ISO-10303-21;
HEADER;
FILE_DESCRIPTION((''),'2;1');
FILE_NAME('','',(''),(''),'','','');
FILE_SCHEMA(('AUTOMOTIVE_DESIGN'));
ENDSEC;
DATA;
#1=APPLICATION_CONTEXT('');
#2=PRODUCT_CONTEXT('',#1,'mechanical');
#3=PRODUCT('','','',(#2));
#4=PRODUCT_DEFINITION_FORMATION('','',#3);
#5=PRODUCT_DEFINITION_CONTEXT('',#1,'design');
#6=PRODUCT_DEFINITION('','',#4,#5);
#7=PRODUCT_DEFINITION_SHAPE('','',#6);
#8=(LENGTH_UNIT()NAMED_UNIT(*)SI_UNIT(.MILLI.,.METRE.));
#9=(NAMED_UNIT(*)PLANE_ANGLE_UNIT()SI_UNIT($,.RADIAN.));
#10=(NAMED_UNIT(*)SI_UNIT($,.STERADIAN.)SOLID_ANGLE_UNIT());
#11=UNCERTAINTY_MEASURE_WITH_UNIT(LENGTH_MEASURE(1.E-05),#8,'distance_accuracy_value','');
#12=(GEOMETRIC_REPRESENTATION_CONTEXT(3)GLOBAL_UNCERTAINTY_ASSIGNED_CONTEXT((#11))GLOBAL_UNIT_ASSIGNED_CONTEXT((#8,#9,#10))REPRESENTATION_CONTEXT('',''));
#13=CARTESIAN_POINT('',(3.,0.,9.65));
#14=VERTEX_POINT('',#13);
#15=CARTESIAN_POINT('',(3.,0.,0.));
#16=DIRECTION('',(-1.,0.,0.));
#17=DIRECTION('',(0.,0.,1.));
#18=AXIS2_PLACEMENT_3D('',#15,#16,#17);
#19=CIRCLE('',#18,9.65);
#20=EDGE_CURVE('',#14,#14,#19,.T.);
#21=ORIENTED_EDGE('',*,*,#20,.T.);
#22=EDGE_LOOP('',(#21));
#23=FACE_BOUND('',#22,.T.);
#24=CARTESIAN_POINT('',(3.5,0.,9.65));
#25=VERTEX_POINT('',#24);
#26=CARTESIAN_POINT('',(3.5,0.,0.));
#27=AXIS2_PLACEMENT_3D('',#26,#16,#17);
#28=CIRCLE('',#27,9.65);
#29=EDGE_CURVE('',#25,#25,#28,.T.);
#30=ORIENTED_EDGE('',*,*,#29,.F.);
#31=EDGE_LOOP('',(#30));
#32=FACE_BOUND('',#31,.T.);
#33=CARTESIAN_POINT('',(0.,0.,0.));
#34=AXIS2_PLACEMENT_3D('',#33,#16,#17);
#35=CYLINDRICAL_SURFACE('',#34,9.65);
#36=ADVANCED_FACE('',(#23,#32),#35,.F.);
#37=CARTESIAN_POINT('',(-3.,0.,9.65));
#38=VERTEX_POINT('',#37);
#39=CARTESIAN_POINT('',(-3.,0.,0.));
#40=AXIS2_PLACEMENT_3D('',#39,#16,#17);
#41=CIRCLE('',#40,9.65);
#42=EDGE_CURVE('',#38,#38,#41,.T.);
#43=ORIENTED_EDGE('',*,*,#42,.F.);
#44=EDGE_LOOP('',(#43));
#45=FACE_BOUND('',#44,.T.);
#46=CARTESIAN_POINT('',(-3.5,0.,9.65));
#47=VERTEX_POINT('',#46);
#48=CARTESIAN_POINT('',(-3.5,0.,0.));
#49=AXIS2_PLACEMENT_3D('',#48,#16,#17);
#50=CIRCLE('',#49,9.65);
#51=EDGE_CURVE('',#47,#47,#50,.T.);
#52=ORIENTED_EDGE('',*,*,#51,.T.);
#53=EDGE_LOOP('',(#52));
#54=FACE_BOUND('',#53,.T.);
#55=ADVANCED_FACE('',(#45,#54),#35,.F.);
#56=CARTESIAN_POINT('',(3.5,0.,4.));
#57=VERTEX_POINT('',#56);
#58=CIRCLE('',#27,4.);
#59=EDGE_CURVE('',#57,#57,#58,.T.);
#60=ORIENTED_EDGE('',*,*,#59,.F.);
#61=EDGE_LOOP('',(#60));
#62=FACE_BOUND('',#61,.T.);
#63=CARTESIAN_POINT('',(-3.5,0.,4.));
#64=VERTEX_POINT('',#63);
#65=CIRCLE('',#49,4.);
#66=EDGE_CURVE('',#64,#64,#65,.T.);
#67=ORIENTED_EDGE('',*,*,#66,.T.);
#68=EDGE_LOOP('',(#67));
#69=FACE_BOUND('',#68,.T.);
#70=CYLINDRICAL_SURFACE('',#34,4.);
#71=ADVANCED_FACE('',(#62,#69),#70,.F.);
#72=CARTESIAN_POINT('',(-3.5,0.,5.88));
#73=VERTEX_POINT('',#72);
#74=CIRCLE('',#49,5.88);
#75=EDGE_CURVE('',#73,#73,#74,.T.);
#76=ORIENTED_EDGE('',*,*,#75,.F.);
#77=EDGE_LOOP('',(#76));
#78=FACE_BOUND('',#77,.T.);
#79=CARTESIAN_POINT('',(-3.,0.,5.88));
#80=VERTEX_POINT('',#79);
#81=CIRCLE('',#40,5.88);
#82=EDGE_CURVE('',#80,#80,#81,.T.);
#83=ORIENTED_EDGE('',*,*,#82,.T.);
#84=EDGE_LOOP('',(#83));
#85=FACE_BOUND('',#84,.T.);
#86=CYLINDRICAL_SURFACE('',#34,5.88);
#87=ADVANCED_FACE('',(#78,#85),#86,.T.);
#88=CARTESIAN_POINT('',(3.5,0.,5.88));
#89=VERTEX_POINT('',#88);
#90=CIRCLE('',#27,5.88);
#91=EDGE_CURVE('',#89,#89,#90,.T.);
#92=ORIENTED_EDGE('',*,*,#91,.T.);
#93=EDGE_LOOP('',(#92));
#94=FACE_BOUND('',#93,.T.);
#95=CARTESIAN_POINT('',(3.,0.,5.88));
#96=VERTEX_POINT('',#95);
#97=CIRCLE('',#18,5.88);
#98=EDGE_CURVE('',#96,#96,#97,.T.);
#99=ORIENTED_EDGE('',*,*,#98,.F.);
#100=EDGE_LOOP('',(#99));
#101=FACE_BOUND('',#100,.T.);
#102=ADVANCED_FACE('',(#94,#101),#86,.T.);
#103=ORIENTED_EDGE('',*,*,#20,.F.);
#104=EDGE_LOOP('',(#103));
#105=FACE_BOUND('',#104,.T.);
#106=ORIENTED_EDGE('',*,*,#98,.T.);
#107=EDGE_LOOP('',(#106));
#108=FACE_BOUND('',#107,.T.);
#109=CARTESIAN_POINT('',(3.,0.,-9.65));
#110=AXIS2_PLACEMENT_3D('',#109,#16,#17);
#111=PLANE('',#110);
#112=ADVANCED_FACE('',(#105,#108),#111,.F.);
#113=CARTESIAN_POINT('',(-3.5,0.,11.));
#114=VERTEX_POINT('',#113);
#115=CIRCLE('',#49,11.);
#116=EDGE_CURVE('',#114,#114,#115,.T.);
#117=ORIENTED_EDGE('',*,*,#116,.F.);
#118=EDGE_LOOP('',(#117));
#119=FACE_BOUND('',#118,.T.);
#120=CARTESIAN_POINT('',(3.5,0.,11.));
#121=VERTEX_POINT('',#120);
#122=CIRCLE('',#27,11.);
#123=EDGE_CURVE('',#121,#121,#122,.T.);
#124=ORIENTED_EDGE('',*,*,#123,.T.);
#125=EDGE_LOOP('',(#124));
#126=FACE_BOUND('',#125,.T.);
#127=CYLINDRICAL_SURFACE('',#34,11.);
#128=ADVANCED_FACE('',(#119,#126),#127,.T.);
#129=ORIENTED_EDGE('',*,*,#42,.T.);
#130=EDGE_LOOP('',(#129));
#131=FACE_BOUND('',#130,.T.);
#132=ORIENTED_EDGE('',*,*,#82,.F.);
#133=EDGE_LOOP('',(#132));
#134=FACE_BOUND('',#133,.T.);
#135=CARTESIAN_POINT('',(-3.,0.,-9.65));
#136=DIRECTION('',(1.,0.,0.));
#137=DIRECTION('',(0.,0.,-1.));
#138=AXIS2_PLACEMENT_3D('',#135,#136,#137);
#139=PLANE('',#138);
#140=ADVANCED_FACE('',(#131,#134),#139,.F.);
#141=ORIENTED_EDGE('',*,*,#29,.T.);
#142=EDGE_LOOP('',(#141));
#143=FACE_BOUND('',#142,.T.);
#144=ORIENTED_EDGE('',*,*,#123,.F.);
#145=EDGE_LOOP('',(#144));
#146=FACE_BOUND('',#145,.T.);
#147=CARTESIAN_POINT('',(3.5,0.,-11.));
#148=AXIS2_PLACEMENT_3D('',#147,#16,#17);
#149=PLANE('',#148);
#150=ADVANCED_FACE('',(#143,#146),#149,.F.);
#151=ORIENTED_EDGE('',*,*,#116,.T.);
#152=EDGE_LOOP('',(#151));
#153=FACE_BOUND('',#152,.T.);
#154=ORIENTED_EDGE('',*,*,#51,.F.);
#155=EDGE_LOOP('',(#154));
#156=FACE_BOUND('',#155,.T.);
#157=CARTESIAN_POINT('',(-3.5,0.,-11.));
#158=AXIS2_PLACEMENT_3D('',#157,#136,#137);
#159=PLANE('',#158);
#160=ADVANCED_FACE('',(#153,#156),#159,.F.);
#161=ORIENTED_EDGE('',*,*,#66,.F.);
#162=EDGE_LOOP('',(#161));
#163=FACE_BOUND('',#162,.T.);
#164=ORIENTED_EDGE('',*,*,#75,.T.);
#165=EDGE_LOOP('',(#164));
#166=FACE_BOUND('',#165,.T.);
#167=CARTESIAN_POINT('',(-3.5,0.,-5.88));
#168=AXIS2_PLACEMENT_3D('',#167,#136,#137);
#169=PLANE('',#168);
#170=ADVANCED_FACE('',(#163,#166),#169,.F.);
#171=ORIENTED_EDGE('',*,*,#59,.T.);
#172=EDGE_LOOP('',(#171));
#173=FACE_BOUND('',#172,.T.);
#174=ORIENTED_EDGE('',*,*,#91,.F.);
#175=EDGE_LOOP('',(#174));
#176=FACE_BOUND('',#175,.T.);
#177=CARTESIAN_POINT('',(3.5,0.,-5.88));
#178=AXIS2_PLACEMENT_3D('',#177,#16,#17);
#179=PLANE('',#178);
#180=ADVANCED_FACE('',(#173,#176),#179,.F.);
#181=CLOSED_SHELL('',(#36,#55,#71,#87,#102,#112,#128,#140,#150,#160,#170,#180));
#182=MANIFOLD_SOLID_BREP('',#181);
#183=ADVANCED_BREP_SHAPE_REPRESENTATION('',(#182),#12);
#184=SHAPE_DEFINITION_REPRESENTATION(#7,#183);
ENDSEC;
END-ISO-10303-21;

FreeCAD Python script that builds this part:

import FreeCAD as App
import Part
import Sketcher
Q = App.Units.Quantity


def add_polygon(sketch, points):
    """Adds a closed chain of lines whose ends are joined by coincident constraints."""
    first, n = sketch.GeometryCount, len(points)
    for a, b in zip(points, points[1:] + points[:1]):
        sketch.addGeometry(Part.LineSegment(App.Vector(*a, 0), App.Vector(*b, 0)), False)
    for i in range(n):
        sketch.addConstraint(Sketcher.Constraint("Coincident", first + i, 2, first + (i + 1) % n, 1))

doc = App.newDocument("Part")
params = doc.addObject("Spreadsheet::Sheet", "Params")
for row, (alias, value) in enumerate([
    ("sketch1_width", "7 mm"),
    ("sketch1_width2", "0.5 mm"),
    ("sketch1_height", "1.35 mm"),
    ("sketch1_height2", "3.77 mm"),
    ("revolution_angle", "360 deg"),
], start=1):
    params.set(f"A{row}", alias)
    params.set(f"B{row}", "=" + value)
    params.setAlias(f"B{row}", alias)

body = doc.addObject("PartDesign::Body", "Body")

sketch1 = doc.addObject("Sketcher::SketchObject", "Sketch")
body.addObject(sketch1)
sketch1.AttachmentSupport = (doc.XZ_Plane, [""])
sketch1.MapMode = "FlatFace"
add_polygon(sketch1, [(3, -9.7), (3.5, -9.7), (3.5, -11), (-3.5, -11), (-3.5, -9.7), (-3, -9.7), (-3, -5.9), (-3.5, -5.9), (-3.5, -4), (3.5, -4), (3.5, -5.9), (3, -5.9)])
sketch1.addConstraint([
    Sketcher.Constraint("Horizontal", 0),
    Sketcher.Constraint("Vertical", 1),
    Sketcher.Constraint("Horizontal", 2),
    Sketcher.Constraint("Vertical", 3),
    Sketcher.Constraint("Horizontal", 4),
    Sketcher.Constraint("Vertical", 5),
    Sketcher.Constraint("Horizontal", 6),
    Sketcher.Constraint("Vertical", 7),
    Sketcher.Constraint("Horizontal", 8),
    Sketcher.Constraint("Vertical", 9),
    Sketcher.Constraint("Horizontal", 10),
    Sketcher.Constraint("Vertical", 11),
    Sketcher.Constraint("Symmetric", 0, 2, 3, 2, -2),
    Sketcher.Constraint("Symmetric", 6, 2, 9, 2, -2),
    Sketcher.Constraint("Vertical", 3, 2, 6, 2),
    Sketcher.Constraint("Equal", 0, 4),
    Sketcher.Constraint("DistanceX", 2, 2, 2, 1, Q("7 mm")),
    Sketcher.Constraint("DistanceX", 0, 1, 0, 2, Q("0.5 mm")),
    Sketcher.Constraint("DistanceY", 1, 2, -1, 1, Q("11 mm")),
    Sketcher.Constraint("DistanceY", 7, 2, -1, 1, Q("4 mm")),
    Sketcher.Constraint("DistanceY", 1, 2, 1, 1, Q("1.35 mm")),
    Sketcher.Constraint("DistanceY", 5, 1, 5, 2, Q("3.77 mm")),
])
sketch1.setExpression("Constraints[28]", "Params.sketch1_width")
sketch1.setExpression("Constraints[29]", "Params.sketch1_width2")
sketch1.setExpression("Constraints[32]", "Params.sketch1_height")
sketch1.setExpression("Constraints[33]", "Params.sketch1_height2")
revolution = doc.addObject("PartDesign::Revolution", "Revolution")
body.addObject(revolution)
revolution.Profile = sketch1
revolution.ReferenceAxis = (sketch1, ["H_Axis"])
revolution.setExpression("Angle", "Params.revolution_angle")

doc.recompute()
